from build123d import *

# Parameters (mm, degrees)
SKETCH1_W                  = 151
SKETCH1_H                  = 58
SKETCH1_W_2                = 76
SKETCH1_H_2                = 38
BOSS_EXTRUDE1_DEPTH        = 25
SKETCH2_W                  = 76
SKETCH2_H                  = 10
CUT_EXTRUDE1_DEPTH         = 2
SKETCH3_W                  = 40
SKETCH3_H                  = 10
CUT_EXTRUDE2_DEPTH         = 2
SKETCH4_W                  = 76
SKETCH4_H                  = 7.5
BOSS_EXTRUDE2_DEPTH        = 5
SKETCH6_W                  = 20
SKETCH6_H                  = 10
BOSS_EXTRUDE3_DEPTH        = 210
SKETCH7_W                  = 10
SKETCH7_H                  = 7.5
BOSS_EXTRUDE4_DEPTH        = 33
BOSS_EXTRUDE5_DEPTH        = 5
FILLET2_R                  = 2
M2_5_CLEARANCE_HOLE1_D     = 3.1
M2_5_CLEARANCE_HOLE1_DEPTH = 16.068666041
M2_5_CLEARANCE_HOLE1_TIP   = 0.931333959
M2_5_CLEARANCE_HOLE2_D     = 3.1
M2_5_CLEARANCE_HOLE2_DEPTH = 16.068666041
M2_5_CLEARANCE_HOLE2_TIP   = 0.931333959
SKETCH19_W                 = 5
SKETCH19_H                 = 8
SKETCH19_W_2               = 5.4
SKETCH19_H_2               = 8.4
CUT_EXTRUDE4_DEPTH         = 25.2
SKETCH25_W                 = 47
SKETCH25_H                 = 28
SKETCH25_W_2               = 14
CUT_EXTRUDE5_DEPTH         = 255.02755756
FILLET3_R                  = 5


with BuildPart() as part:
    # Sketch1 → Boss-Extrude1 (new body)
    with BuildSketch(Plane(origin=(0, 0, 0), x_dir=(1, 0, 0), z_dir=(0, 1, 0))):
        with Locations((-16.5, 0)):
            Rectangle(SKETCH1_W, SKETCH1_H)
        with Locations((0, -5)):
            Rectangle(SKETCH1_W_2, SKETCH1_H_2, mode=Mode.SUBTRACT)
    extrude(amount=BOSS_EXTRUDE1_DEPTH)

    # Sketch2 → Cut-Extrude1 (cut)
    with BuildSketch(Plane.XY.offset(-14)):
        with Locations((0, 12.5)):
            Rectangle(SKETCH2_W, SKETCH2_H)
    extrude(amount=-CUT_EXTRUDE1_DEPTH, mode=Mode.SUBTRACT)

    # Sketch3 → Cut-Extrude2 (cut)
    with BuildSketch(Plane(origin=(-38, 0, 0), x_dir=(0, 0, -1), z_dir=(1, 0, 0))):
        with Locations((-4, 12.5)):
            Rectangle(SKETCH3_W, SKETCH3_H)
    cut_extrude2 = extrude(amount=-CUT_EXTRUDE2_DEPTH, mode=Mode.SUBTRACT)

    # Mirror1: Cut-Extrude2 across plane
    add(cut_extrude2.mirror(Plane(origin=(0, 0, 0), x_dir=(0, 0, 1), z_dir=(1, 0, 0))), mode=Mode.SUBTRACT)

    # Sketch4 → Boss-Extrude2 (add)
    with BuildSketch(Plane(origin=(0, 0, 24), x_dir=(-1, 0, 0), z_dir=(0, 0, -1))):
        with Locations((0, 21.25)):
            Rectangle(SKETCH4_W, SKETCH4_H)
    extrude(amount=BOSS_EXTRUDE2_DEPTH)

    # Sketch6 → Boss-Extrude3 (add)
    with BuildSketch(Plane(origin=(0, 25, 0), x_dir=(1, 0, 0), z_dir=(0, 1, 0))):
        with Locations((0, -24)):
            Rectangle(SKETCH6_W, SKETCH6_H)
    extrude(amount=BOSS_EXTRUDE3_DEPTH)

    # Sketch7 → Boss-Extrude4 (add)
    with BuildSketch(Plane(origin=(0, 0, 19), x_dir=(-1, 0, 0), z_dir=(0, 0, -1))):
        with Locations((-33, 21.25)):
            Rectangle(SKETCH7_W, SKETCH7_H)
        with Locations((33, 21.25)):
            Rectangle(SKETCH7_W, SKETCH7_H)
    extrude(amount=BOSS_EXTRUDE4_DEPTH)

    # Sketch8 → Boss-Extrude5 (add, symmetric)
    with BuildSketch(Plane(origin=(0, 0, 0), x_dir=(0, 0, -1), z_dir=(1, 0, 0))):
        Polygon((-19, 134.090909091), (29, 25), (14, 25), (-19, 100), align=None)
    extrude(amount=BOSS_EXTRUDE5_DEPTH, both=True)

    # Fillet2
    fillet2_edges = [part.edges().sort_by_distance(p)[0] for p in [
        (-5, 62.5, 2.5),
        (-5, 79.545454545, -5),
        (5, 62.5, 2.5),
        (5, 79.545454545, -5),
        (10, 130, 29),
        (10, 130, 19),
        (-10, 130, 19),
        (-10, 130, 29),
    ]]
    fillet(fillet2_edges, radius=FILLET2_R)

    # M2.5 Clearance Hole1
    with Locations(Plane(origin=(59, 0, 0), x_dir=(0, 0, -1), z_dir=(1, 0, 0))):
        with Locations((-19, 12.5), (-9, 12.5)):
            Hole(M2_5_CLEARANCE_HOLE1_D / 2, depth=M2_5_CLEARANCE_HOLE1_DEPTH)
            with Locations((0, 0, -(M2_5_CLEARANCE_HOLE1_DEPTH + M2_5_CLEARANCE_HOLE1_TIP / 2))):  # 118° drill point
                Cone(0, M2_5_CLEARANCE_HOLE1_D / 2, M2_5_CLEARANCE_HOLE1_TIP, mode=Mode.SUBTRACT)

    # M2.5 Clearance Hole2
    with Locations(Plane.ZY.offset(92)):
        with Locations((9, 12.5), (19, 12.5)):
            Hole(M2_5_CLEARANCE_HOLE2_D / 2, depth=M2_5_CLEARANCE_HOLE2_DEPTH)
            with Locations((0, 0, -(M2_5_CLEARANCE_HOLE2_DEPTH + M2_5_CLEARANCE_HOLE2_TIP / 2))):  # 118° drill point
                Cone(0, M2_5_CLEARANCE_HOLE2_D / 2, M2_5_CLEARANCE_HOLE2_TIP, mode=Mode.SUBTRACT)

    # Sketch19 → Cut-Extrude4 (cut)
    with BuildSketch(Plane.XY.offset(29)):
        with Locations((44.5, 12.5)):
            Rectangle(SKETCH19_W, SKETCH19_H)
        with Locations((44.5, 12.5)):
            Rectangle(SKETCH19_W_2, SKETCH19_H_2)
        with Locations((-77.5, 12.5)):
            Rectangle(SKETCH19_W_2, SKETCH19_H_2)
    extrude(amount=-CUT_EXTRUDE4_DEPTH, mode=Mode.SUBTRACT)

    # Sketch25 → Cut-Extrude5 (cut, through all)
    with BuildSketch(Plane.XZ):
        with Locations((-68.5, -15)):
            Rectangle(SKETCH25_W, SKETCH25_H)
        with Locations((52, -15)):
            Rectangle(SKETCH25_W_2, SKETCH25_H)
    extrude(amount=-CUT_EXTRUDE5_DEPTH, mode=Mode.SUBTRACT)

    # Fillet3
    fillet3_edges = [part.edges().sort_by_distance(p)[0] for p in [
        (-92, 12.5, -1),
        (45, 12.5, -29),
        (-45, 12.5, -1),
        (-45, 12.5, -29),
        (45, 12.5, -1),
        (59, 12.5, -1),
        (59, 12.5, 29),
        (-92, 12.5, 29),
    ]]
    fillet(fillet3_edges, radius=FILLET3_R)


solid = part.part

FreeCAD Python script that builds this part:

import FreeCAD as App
import Part
import Sketcher
Q = App.Units.Quantity


def edges_at(feature, points):
    """Names of the edges that pass closest to the given points."""
    edges = feature.Shape.Edges
    near = lambda p: min(range(len(edges)), key=lambda i: edges[i].distToShape(Part.Vertex(*p))[0])
    return sorted({f"Edge{near(p) + 1}" for p in points})


def add_polygon(sketch, points):
    """Adds a closed chain of lines whose ends are joined by coincident constraints."""
    first, n = sketch.GeometryCount, len(points)
    for a, b in zip(points, points[1:] + points[:1]):
        sketch.addGeometry(Part.LineSegment(App.Vector(*a, 0), App.Vector(*b, 0)), False)
    for i in range(n):
        sketch.addConstraint(Sketcher.Constraint("Coincident", first + i, 2, first + (i + 1) % n, 1))

doc = App.newDocument("Part")
body = doc.addObject("PartDesign::Body", "Body")

sketch1 = body.newObject("Sketcher::SketchObject", "Sketch")
sketch1.AttachmentSupport = (doc.getObject("XZ_Plane"), [""])
sketch1.MapMode = "FlatFace"
add_polygon(sketch1, [(-92, -29), (-92, 29), (59, 29), (59, -29)])
add_polygon(sketch1, [(38, 24), (-38, 24), (-38, -14), (38, -14)])
sketch1.addConstraint([
    Sketcher.Constraint("Vertical", 0),
    Sketcher.Constraint("Horizontal", 1),
    Sketcher.Constraint("Vertical", 2),
    Sketcher.Constraint("Horizontal", 3),
    Sketcher.Constraint("Horizontal", 4),
    Sketcher.Constraint("Vertical", 5),
    Sketcher.Constraint("Horizontal", 6),
    Sketcher.Constraint("Vertical", 7),
    Sketcher.Constraint("DistanceX", 1, 1, 1, 2, Q("151 mm")),
    Sketcher.Constraint("DistanceX", 4, 2, 4, 1, Q("76 mm")),
    Sketcher.Constraint("DistanceY", 0, 1, 0, 2, Q("58 mm")),
    Sketcher.Constraint("DistanceY", 5, 2, 5, 1, Q("38 mm")),
    Sketcher.Constraint("DistanceX", 0, 2, -1, 1, Q("92 mm")),
    Sketcher.Constraint("DistanceY", -1, 1, 0, 2, Q("29 mm")),
    Sketcher.Constraint("DistanceX", 4, 2, -1, 1, Q("38 mm")),
    Sketcher.Constraint("DistanceY", -1, 1, 4, 2, Q("24 mm")),
])
pad1 = body.newObject("PartDesign::Pad", "Pad")
pad1.Profile = sketch1
pad1.Length = 25
pad1.Reversed = True

sketch2 = body.newObject("Sketcher::SketchObject", "Sketch001")
sketch2.AttachmentSupport = (doc.getObject("XY_Plane"), [""])
sketch2.MapMode = "FlatFace"
sketch2.AttachmentOffset = App.Placement(App.Vector(0, 0, -14), App.Rotation())
add_polygon(sketch2, [(-38, 18), (-38, 8), (38, 8), (38, 18)])
sketch2.addConstraint([
    Sketcher.Constraint("Vertical", 0),
    Sketcher.Constraint("Horizontal", 1),
    Sketcher.Constraint("Vertical", 2),
    Sketcher.Constraint("Horizontal", 3),
    Sketcher.Constraint("DistanceX", 1, 1, 1, 2, Q("76 mm")),
    Sketcher.Constraint("DistanceY", 0, 2, 0, 1, Q("10 mm")),
    Sketcher.Constraint("DistanceX", 0, 2, -1, 1, Q("38 mm")),
    Sketcher.Constraint("DistanceY", -1, 1, 0, 2, Q("7.5 mm")),
])
pocket1 = body.newObject("PartDesign::Pocket", "Pocket")
pocket1.Profile = sketch2
pocket1.Length = 2

sketch3 = body.newObject("Sketcher::SketchObject", "Sketch002")
sketch3.AttachmentSupport = (doc.getObject("YZ_Plane"), [""])
sketch3.MapMode = "FlatFace"
sketch3.AttachmentOffset = App.Placement(App.Vector(0, 0, -38), App.Rotation())
add_polygon(sketch3, [(18, 24), (8, 24), (8, -16), (18, -16)])
sketch3.addConstraint([
    Sketcher.Constraint("Horizontal", 0),
    Sketcher.Constraint("Vertical", 1),
    Sketcher.Constraint("Horizontal", 2),
    Sketcher.Constraint("Vertical", 3),
    Sketcher.Constraint("DistanceX", 0, 2, 0, 1, Q("10 mm")),
    Sketcher.Constraint("DistanceY", 1, 2, 1, 1, Q("40 mm")),
    Sketcher.Constraint("DistanceY", -1, 1, 0, 2, Q("24 mm")),
    Sketcher.Constraint("DistanceX", -1, 1, 0, 2, Q("7.5 mm")),
])
pocket2 = body.newObject("PartDesign::Pocket", "Pocket001")
pocket2.Profile = sketch3
pocket2.Length = 2
doc.recompute()

mirrored = body.newObject("PartDesign::Mirrored", "Mirrored")
mirrored.Originals = [pocket2]
mirrored.MirrorPlane = (doc.getObject("YZ_Plane"), [""])
body.Tip = mirrored

sketch4 = body.newObject("Sketcher::SketchObject", "Sketch003")
sketch4.AttachmentSupport = (doc.getObject("XY_Plane"), [""])
sketch4.MapMode = "FlatFace"
sketch4.AttachmentOffset = App.Placement(App.Vector(0, 0, 24), App.Rotation())
add_polygon(sketch4, [(38, 25), (38, 18), (-38, 18), (-38, 25)])
sketch4.addConstraint([
    Sketcher.Constraint("Vertical", 0),
    Sketcher.Constraint("Horizontal", 1),
    Sketcher.Constraint("Vertical", 2),
    Sketcher.Constraint("Horizontal", 3),
    Sketcher.Constraint("DistanceX", 1, 2, 1, 1, Q("76 mm")),
    Sketcher.Constraint("DistanceY", 0, 2, 0, 1, Q("7.5 mm")),
    Sketcher.Constraint("DistanceX", -1, 1, 0, 2, Q("38 mm")),
    Sketcher.Constraint("DistanceY", -1, 1, 2, 2, Q("25 mm")),
])
pad2 = body.newObject("PartDesign::Pad", "Pad001")
pad2.Profile = sketch4
pad2.Length = 5
pad2.Reversed = True

sketch5 = body.newObject("Sketcher::SketchObject", "Sketch004")
sketch5.AttachmentSupport = (doc.getObject("XZ_Plane"), [""])
sketch5.MapMode = "FlatFace"
sketch5.AttachmentOffset = App.Placement(App.Vector(0, 0, -25), App.Rotation())
add_polygon(sketch5, [(-10, 19), (-10, 29), (10, 29), (10, 19)])
sketch5.addConstraint([
    Sketcher.Constraint("Vertical", 0),
    Sketcher.Constraint("Horizontal", 1),
    Sketcher.Constraint("Vertical", 2),
    Sketcher.Constraint("Horizontal", 3),
    Sketcher.Constraint("DistanceX", 1, 1, 1, 2, Q("20 mm")),
    Sketcher.Constraint("DistanceY", 0, 1, 0, 2, Q("10 mm")),
    Sketcher.Constraint("DistanceX", 0, 2, -1, 1, Q("10 mm")),
    Sketcher.Constraint("DistanceY", -1, 1, 0, 2, Q("29 mm")),
])
pad3 = body.newObject("PartDesign::Pad", "Pad002")
pad3.Profile = sketch5
pad3.Length = 210
pad3.Reversed = True

sketch6 = body.newObject("Sketcher::SketchObject", "Sketch005")
sketch6.AttachmentSupport = (doc.getObject("XY_Plane"), [""])
sketch6.MapMode = "FlatFace"
sketch6.AttachmentOffset = App.Placement(App.Vector(0, 0, 19), App.Rotation())
add_polygon(sketch6, [(38, 25), (38, 18), (28, 18), (28, 25)])
add_polygon(sketch6, [(-28, 25), (-28, 18), (-38, 18), (-38, 25)])
sketch6.addConstraint([
    Sketcher.Constraint("Vertical", 0),
    Sketcher.Constraint("Horizontal", 1),
    Sketcher.Constraint("Vertical", 2),
    Sketcher.Constraint("Horizontal", 3),
    Sketcher.Constraint("Vertical", 4),
    Sketcher.Constraint("Horizontal", 5),
    Sketcher.Constraint("Vertical", 6),
    Sketcher.Constraint("Horizontal", 7),
    Sketcher.Constraint("Symmetric", 1, 2, 4, 2, -2),
    Sketcher.Constraint("Symmetric", 3, 2, 6, 2, -2),
    Sketcher.Constraint("DistanceX", 1, 2, 1, 1, Q("10 mm")),
    Sketcher.Constraint("DistanceY", 0, 2, 0, 1, Q("7.5 mm")),
    Sketcher.Constraint("DistanceX", -1, 1, 0, 2, Q("38 mm")),
    Sketcher.Constraint("DistanceY", -1, 1, 2, 2, Q("25 mm")),
])
pad4 = body.newObject("PartDesign::Pad", "Pad003")
pad4.Profile = sketch6
pad4.Length = 33
pad4.Reversed = True

sketch7 = body.newObject("Sketcher::SketchObject", "Sketch006")
sketch7.AttachmentSupport = (doc.getObject("YZ_Plane"), [""])
sketch7.MapMode = "FlatFace"
add_polygon(sketch7, [(25, -29), (134, 19), (100, 19), (25, -14)])
sketch7.addConstraint([
    Sketcher.Constraint("Horizontal", 1),
    Sketcher.Constraint("Vertical", 3),
    Sketcher.Constraint("Parallel", 0, 2),
    Sketcher.Constraint("DistanceY", 3, 2, 3, 1, Q("15 mm")),
    Sketcher.Constraint("DistanceY", -1, 1, 0, 2, Q("19 mm")),
    Sketcher.Constraint("DistanceX", -1, 1, 1, 2, Q("100 mm")),
    Sketcher.Constraint("DistanceX", -1, 1, 2, 2, Q("25 mm")),
    Sketcher.Constraint("DistanceY", 2, 2, -1, 1, Q("14 mm")),
])
pad5 = body.newObject("PartDesign::Pad", "Pad004")
pad5.Profile = sketch7
pad5.Length = 10
pad5.Midplane = True
doc.recompute()

fillet = body.newObject("PartDesign::Fillet", "Fillet")
fillet.Base = (pad5, edges_at(pad5, [
    (-5, 62.5, 2.5),
    (-5, 79.545, -5),
    (5, 62.5, 2.5),
    (5, 79.545, -5),
    (10, 130, 29),
    (10, 130, 19),
    (-10, 130, 19),
    (-10, 130, 29),
]))
fillet.Radius = 2

sketch8 = body.newObject("Sketcher::SketchObject", "Sketch007")
sketch8.AttachmentSupport = (doc.getObject("YZ_Plane"), [""])
sketch8.MapMode = "FlatFace"
sketch8.AttachmentOffset = App.Placement(App.Vector(0, 0, 59), App.Rotation())
sketch8.addGeometry([
    Part.Circle(App.Vector(12.5, 19, 0), App.Vector(0, 0, 1), 1.6),
    Part.Circle(App.Vector(12.5, 9, 0), App.Vector(0, 0, 1), 1.6),
], False)
sketch8.addConstraint([
    Sketcher.Constraint("Equal", 0, 1),
    Sketcher.Constraint("Vertical", 0, 3, 1, 3),
    Sketcher.Constraint("Diameter", 0, Q("3.1 mm")),
    Sketcher.Constraint("DistanceY", -1, 1, 0, 3, Q("19 mm")),
    Sketcher.Constraint("DistanceY", -1, 1, 1, 3, Q("9 mm")),
    Sketcher.Constraint("DistanceX", -1, 1, 0, 3, Q("12.5 mm")),
])
doc.recompute()
hole = body.newObject("PartDesign::Hole", "Hole")
hole.Profile = sketch8
hole.ThreadType = "None"
hole.Diameter = 3.1
hole.DepthType = "Dimension"
hole.Depth = 16.068666
hole.DrillPoint = "Angled"
hole.DrillPointAngle = 118

sketch9 = body.newObject("Sketcher::SketchObject", "Sketch008")
sketch9.AttachmentSupport = (doc.getObject("YZ_Plane"), [""])
sketch9.MapMode = "FlatFace"
sketch9.AttachmentOffset = App.Placement(App.Vector(0, 0, -92), App.Rotation())
sketch9.addGeometry([
    Part.Circle(App.Vector(12.5, 9, 0), App.Vector(0, 0, 1), 1.6),
    Part.Circle(App.Vector(12.5, 19, 0), App.Vector(0, 0, 1), 1.6),
], False)
sketch9.addConstraint([
    Sketcher.Constraint("Equal", 0, 1),
    Sketcher.Constraint("Vertical", 0, 3, 1, 3),
    Sketcher.Constraint("Diameter", 0, Q("3.1 mm")),
    Sketcher.Constraint("DistanceY", -1, 1, 0, 3, Q("9 mm")),
    Sketcher.Constraint("DistanceY", -1, 1, 1, 3, Q("19 mm")),
    Sketcher.Constraint("DistanceX", -1, 1, 0, 3, Q("12.5 mm")),
])
doc.recompute()
hole2 = body.newObject("PartDesign::Hole", "Hole001")
hole2.Profile = sketch9
hole2.ThreadType = "None"
hole2.Diameter = 3.1
hole2.DepthType = "Dimension"
hole2.Depth = 16.068666
hole2.DrillPoint = "Angled"
hole2.DrillPointAngle = 118
hole2.Reversed = True

sketch10 = body.newObject("Sketcher::SketchObject", "Sketch009")
sketch10.AttachmentSupport = (doc.getObject("XY_Plane"), [""])
sketch10.MapMode = "FlatFace"
sketch10.AttachmentOffset = App.Placement(App.Vector(0, 0, 29), App.Rotation())
add_polygon(sketch10, [(42, 17), (42, 8), (47, 8), (47, 17)])
add_polygon(sketch10, [(-80, 17), (-80, 8), (-75, 8), (-75, 17)])
sketch10.addConstraint([
    Sketcher.Constraint("Vertical", 0),
    Sketcher.Constraint("Horizontal", 1),
    Sketcher.Constraint("Vertical", 2),
    Sketcher.Constraint("Horizontal", 3),
    Sketcher.Constraint("Vertical", 4),
    Sketcher.Constraint("Horizontal", 5),
    Sketcher.Constraint("Vertical", 6),
    Sketcher.Constraint("Horizontal", 7),
    Sketcher.Constraint("Horizontal", 1, 2, 4, 2),
    Sketcher.Constraint("Horizontal", 3, 2, 6, 2),
    Sketcher.Constraint("Equal", 3, 5),
    Sketcher.Constraint("DistanceX", 1, 1, 1, 2, Q("5.4 mm")),
    Sketcher.Constraint("DistanceY", 0, 2, 0, 1, Q("8.4 mm")),
    Sketcher.Constraint("DistanceX", 4, 2, 0, 2, Q("122 mm")),
    Sketcher.Constraint("DistanceX", -1, 1, 0, 2, Q("41.8 mm")),
    Sketcher.Constraint("DistanceY", -1, 1, 0, 2, Q("8.3 mm")),
])
pocket3 = body.newObject("PartDesign::Pocket", "Pocket002")
pocket3.Profile = sketch10
pocket3.Length = 25.2

sketch11 = body.newObject("Sketcher::SketchObject", "Sketch010")
sketch11.AttachmentSupport = (doc.getObject("XZ_Plane"), [""])
sketch11.MapMode = "FlatFace"
add_polygon(sketch11, [(-92, -1), (-92, -29), (-45, -29), (-45, -1)])
add_polygon(sketch11, [(45, -1), (45, -29), (59, -29), (59, -1)])
sketch11.addConstraint([
    Sketcher.Constraint("Vertical", 0),
    Sketcher.Constraint("Horizontal", 1),
    Sketcher.Constraint("Vertical", 2),
    Sketcher.Constraint("Horizontal", 3),
    Sketcher.Constraint("Vertical", 4),
    Sketcher.Constraint("Horizontal", 5),
    Sketcher.Constraint("Vertical", 6),
    Sketcher.Constraint("Horizontal", 7),
    Sketcher.Constraint("Symmetric", 1, 2, 4, 2, -2),
    Sketcher.Constraint("Horizontal", 3, 2, 6, 2),
    Sketcher.Constraint("DistanceX", 1, 1, 1, 2, Q("47 mm")),
    Sketcher.Constraint("DistanceX", 5, 1, 5, 2, Q("14 mm")),
    Sketcher.Constraint("DistanceY", 0, 2, 0, 1, Q("28 mm")),
    Sketcher.Constraint("DistanceX", 0, 2, -1, 1, Q("92 mm")),
    Sketcher.Constraint("DistanceY", 0, 2, -1, 1, Q("29 mm")),
])
pocket4 = body.newObject("PartDesign::Pocket", "Pocket003")
pocket4.Profile = sketch11
pocket4.Type = "ThroughAll"
doc.recompute()

fillet2 = body.newObject("PartDesign::Fillet", "Fillet001")
fillet2.Base = (pocket4, edges_at(pocket4, [
    (-92, 12.5, -1),
    (45, 12.5, -29),
    (-45, 12.5, -1),
    (-45, 12.5, -29),
    (45, 12.5, -1),
    (59, 12.5, -1),
    (59, 12.5, 29),
    (-92, 12.5, 29),
]))
fillet2.Radius = 5

doc.recompute()
